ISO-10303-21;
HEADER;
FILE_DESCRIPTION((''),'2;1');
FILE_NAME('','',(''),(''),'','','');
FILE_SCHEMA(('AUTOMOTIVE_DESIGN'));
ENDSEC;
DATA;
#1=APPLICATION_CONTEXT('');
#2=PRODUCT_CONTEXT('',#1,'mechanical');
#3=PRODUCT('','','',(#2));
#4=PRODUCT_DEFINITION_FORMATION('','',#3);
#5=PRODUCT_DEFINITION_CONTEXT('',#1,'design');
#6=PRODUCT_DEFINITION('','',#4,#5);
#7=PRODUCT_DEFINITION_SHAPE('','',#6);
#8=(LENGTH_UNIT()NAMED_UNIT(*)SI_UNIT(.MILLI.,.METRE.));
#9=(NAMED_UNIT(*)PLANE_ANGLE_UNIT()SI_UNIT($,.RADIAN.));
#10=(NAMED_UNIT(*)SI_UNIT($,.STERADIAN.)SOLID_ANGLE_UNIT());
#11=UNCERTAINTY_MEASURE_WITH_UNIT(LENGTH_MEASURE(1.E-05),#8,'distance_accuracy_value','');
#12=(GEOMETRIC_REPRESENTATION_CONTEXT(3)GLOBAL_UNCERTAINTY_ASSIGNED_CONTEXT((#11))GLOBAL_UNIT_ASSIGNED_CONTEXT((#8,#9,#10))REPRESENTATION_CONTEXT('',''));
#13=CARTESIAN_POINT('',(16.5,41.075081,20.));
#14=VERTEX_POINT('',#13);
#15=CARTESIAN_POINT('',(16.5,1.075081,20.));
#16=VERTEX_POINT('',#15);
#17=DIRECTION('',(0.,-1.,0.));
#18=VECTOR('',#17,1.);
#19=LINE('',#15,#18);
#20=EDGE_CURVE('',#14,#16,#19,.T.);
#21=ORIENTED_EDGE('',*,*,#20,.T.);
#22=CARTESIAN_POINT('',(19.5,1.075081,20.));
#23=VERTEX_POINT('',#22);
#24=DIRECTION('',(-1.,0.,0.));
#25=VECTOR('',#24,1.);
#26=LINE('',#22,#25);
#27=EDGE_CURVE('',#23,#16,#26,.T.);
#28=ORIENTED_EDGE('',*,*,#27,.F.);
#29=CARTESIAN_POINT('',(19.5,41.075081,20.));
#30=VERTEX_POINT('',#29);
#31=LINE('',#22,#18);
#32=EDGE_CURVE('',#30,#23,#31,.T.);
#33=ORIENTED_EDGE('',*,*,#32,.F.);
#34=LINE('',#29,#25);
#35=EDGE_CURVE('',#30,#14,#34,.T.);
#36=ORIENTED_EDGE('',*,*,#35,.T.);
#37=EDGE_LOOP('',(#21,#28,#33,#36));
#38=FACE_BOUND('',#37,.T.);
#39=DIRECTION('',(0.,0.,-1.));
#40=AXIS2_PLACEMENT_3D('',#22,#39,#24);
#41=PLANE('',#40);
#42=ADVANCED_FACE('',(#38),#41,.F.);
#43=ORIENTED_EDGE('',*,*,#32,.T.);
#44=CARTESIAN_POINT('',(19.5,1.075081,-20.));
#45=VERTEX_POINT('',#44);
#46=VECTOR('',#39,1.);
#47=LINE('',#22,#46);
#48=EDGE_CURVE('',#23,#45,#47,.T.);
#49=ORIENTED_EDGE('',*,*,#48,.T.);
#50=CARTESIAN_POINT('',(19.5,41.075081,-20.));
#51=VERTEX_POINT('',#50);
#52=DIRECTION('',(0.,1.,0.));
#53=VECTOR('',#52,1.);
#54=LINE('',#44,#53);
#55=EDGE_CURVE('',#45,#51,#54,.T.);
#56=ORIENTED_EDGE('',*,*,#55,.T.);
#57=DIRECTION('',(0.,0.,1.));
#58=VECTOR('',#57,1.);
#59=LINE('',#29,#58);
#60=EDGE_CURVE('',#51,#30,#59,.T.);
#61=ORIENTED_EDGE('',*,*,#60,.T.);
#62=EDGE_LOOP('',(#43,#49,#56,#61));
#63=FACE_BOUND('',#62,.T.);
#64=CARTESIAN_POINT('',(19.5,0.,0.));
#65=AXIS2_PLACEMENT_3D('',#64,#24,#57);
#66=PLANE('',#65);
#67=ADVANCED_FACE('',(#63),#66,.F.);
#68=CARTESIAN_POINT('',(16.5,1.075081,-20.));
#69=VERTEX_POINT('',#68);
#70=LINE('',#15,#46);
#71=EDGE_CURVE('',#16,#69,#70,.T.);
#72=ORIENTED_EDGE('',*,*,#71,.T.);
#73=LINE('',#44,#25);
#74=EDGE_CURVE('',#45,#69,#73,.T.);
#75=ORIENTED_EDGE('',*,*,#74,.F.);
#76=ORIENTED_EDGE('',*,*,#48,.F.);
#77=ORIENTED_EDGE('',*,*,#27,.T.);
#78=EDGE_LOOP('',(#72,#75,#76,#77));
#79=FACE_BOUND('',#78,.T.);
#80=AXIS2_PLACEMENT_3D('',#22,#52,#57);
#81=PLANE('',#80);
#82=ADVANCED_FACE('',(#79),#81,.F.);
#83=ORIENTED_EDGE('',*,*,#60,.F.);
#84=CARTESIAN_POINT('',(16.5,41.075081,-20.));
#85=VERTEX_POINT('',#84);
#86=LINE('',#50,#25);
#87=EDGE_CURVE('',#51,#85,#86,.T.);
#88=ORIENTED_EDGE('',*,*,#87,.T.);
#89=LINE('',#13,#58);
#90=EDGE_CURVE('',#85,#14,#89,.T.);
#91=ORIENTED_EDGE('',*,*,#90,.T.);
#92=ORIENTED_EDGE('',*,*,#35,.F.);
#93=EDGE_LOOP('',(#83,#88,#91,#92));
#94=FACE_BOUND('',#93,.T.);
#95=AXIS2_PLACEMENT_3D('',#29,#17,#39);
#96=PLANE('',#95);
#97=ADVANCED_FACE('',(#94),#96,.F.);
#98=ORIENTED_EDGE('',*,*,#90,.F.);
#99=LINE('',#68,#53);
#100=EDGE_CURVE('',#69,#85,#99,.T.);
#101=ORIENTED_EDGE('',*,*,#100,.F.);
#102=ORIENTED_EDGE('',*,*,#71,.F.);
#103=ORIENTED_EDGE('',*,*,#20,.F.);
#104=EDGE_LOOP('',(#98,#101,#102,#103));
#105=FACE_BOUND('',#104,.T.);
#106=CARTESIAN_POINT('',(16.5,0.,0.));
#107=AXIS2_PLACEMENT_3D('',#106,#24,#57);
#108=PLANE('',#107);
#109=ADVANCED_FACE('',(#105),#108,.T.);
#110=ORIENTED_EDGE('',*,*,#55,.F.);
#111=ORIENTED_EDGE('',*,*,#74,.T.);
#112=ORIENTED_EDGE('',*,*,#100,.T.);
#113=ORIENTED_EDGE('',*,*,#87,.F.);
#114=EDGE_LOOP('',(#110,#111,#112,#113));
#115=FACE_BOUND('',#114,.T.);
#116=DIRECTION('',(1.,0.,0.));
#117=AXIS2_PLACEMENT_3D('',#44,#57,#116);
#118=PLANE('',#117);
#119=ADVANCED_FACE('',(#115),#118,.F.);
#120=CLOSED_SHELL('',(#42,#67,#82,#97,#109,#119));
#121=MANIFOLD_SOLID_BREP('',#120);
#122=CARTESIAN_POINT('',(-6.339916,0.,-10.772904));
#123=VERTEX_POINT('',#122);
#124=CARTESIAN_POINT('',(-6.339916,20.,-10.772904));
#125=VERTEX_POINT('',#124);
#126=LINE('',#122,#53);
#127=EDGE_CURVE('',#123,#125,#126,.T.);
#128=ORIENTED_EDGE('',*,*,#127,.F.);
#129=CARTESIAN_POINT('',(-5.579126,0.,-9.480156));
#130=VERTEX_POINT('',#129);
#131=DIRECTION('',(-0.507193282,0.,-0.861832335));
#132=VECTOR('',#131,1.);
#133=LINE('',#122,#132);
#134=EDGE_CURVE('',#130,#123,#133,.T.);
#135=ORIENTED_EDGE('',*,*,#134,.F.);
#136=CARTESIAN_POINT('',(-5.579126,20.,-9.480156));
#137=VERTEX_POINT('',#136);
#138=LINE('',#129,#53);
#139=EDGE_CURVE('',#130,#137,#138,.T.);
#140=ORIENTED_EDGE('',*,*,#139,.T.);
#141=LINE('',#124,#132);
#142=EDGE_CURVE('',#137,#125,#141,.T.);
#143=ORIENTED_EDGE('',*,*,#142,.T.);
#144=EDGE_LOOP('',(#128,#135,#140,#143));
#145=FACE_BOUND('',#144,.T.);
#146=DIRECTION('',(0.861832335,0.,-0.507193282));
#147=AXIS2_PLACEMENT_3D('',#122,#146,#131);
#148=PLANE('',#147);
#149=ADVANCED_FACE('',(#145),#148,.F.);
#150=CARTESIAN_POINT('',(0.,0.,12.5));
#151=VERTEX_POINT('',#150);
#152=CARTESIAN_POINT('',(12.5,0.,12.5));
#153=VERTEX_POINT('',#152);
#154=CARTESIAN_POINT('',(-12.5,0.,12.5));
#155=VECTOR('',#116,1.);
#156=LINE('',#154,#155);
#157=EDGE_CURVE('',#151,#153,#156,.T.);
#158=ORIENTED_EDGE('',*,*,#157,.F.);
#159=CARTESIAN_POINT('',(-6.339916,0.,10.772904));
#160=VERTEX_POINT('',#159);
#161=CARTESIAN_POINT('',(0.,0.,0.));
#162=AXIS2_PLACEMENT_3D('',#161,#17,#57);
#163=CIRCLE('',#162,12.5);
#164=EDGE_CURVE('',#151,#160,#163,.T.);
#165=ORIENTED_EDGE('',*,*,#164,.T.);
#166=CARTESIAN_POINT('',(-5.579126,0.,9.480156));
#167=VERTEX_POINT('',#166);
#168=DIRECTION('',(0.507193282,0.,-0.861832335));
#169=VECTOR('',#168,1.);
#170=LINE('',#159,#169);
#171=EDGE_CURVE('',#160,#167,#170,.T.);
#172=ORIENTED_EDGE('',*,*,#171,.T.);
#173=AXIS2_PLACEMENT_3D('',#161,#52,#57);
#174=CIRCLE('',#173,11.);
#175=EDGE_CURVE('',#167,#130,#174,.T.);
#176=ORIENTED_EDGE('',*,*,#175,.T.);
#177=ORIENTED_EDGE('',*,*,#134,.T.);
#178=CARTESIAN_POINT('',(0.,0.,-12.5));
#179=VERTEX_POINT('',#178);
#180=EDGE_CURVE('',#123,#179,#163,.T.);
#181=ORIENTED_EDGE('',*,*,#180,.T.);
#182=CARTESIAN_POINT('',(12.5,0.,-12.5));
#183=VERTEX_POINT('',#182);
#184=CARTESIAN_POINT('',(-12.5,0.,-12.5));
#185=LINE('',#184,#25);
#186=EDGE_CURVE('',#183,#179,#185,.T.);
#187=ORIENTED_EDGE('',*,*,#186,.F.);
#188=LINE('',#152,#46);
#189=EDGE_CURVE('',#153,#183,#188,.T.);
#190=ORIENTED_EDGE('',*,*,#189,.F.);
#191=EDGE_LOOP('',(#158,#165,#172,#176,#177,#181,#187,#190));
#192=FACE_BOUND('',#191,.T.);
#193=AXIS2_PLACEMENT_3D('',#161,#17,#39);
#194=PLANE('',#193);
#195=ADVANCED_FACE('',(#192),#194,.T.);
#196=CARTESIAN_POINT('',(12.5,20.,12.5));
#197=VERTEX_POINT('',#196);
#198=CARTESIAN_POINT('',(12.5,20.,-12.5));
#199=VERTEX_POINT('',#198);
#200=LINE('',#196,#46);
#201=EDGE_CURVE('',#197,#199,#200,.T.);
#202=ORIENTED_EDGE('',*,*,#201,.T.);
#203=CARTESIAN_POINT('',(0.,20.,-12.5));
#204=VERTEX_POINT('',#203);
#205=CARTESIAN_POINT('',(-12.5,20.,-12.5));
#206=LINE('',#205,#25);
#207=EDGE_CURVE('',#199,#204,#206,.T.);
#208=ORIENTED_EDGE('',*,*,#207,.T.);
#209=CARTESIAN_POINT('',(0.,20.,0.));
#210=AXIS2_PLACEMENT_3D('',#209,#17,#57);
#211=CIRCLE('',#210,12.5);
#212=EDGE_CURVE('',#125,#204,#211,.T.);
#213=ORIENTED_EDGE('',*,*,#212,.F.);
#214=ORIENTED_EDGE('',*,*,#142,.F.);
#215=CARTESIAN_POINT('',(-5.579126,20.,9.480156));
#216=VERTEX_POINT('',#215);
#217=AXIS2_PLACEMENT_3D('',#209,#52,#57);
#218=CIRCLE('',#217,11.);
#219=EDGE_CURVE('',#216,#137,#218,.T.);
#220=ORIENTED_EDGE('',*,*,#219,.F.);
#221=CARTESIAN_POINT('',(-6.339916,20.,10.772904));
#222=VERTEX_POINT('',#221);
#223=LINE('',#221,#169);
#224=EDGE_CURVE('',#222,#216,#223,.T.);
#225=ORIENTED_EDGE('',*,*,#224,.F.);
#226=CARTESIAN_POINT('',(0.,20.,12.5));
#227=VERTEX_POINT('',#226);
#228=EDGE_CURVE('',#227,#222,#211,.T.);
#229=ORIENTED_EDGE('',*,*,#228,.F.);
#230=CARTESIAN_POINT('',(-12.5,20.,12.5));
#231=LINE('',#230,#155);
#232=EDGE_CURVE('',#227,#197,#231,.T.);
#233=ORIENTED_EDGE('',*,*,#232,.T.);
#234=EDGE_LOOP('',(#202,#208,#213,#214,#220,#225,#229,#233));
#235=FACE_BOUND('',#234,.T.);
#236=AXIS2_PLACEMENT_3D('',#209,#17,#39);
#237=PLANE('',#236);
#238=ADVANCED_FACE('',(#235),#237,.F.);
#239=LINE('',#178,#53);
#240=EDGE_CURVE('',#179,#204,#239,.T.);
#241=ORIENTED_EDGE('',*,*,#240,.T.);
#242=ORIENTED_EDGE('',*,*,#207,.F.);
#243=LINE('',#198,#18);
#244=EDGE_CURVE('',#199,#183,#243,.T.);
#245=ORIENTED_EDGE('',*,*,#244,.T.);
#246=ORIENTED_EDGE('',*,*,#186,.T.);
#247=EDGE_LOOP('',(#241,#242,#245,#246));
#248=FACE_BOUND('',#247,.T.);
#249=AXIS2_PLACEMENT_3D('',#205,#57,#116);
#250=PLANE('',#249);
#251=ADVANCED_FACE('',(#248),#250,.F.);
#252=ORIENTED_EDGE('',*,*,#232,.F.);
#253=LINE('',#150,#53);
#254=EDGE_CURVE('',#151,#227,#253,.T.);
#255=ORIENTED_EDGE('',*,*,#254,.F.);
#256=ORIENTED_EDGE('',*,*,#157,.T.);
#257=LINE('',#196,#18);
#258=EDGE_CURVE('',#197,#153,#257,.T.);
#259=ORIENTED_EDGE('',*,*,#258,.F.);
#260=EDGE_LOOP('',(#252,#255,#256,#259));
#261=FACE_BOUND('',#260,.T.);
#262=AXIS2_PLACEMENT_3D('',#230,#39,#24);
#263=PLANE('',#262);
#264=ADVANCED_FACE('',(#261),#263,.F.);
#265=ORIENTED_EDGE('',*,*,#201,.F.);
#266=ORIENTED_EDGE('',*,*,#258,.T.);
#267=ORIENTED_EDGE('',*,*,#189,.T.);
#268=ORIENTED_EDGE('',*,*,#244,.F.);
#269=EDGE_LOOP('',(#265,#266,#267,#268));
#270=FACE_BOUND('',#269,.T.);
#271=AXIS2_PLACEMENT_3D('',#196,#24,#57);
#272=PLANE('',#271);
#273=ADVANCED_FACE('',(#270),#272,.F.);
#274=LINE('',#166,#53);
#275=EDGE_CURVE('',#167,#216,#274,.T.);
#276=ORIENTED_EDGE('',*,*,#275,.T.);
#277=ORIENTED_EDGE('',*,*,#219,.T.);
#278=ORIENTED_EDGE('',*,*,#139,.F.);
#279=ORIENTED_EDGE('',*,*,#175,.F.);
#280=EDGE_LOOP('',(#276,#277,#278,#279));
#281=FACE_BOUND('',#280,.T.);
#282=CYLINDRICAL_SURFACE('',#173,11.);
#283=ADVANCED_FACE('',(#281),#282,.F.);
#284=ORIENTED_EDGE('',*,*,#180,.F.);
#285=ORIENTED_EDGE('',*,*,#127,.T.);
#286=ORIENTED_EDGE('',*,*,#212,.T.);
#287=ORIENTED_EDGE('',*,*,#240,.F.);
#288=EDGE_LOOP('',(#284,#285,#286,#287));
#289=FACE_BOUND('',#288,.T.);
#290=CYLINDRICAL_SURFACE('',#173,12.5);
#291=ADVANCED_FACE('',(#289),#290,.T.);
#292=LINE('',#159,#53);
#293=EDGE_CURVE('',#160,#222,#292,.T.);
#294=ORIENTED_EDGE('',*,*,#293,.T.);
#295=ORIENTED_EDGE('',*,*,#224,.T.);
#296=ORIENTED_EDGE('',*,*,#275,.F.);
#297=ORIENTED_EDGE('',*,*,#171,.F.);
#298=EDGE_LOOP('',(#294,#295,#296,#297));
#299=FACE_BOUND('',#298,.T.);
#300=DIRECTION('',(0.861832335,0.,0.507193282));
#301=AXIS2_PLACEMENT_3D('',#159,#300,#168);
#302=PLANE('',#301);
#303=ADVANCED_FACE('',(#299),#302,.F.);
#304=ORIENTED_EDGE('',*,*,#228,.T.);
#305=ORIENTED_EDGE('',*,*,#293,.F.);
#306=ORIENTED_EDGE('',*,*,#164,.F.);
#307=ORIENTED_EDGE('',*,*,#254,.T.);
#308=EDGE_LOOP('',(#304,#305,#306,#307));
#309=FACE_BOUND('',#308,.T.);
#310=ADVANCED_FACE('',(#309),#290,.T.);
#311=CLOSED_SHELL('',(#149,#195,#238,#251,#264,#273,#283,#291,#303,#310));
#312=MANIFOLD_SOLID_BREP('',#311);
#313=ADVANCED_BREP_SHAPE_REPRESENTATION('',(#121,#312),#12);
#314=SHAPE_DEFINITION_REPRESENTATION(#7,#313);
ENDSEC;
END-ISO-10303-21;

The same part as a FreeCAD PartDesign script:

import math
import FreeCAD as App
import Part
import Sketcher

doc = App.newDocument("Part")
body = doc.addObject("PartDesign::Body", "Body")

sketch1 = doc.addObject("Sketcher::SketchObject", "Sketch")
body.addObject(sketch1)
sketch1.AttachmentSupport = (doc.XZ_Plane, [""])
sketch1.MapMode = "FlatFace"
sketch1.addGeometry([
    Part.LineSegment(App.Vector(-12, -12, 0), App.Vector(-12, 12, 0)),
    Part.LineSegment(App.Vector(-12, 12, 0), App.Vector(12, 12, 0)),
    Part.LineSegment(App.Vector(12, 12, 0), App.Vector(12, -12, 0)),
    Part.LineSegment(App.Vector(12, -12, 0), App.Vector(-12, -12, 0)),
], False)
sketch1.addConstraint([
    Sketcher.Constraint("Coincident", 0, 2, 1, 1),
    Sketcher.Constraint("Coincident", 1, 2, 2, 1),
    Sketcher.Constraint("Coincident", 2, 2, 3, 1),
    Sketcher.Constraint("Coincident", 3, 2, 0, 1),
    Sketcher.Constraint("Vertical", 0),
    Sketcher.Constraint("Horizontal", 1),
    Sketcher.Constraint("Vertical", 2),
    Sketcher.Constraint("Horizontal", 3),
    Sketcher.Constraint("Symmetric", 0, 2, 2, 2, -1, 1),
    Sketcher.Constraint("Equal", 3, 0),
    Sketcher.Constraint("DistanceX", 1, 1, 1, 2, 25.0),
])
pad1 = doc.addObject("PartDesign::Pad", "Pad")
body.addObject(pad1)
pad1.Profile = sketch1
pad1.Length = 20
pad1.Reversed = True

sketch2 = doc.addObject("Sketcher::SketchObject", "Sketch001")
body.addObject(sketch2)
sketch2.AttachmentSupport = (doc.XZ_Plane, [""])
sketch2.MapMode = "FlatFace"
sketch2.AttachmentOffset = App.Placement(App.Vector(0, 0, -20), App.Rotation())
sketch2.addGeometry(Part.Circle(App.Vector(0, 0, 0), App.Vector(0, 0, 1), 11), False)
sketch2.addConstraint([
    Sketcher.Constraint("Coincident", 0, 3, -1, 1),
    Sketcher.Constraint("Diameter", 0, 22.0),
])
pocket1 = doc.addObject("PartDesign::Pocket", "Pocket")
body.addObject(pocket1)
pocket1.Profile = sketch2
pocket1.Type = "ThroughAll"
pocket1.Reversed = True

sketch3 = doc.addObject("Sketcher::SketchObject", "Sketch002")
body.addObject(sketch3)
sketch3.AttachmentSupport = (doc.XZ_Plane, [""])
sketch3.MapMode = "FlatFace"
sketch3.AttachmentOffset = App.Placement(App.Vector(0, 0, -20), App.Rotation())
sketch3.addGeometry([
    Part.LineSegment(App.Vector(0, -12.5, 0), App.Vector(-12.5, -12.5, 0)),
    Part.LineSegment(App.Vector(-12.5, -12.5, 0), App.Vector(-12.5, 12.5, 0)),
    Part.LineSegment(App.Vector(-12.5, 12.5, 0), App.Vector(0, 12.5, 0)),
    Part.ArcOfCircle(Part.Circle(App.Vector(0, 0, 0), App.Vector(0, 0, 1), 12.5), math.radians(90), math.radians(120)),
    Part.LineSegment(App.Vector(-6.3, 10.8, 0), App.Vector(-5.6, 9.5, 0)),
    Part.ArcOfCircle(Part.Circle(App.Vector(0, 0, 0), App.Vector(0, 0, 1), 11), math.radians(120), math.radians(240)),
    Part.LineSegment(App.Vector(-5.6, -9.5, 0), App.Vector(-6.3, -10.8, 0)),
    Part.ArcOfCircle(Part.Circle(App.Vector(0, 0, 0), App.Vector(0, 0, 1), 12.5), math.radians(-120), math.radians(-90)),
], False)
sketch3.addConstraint([
    Sketcher.Constraint("Coincident", 0, 2, 1, 1),
    Sketcher.Constraint("Coincident", 1, 2, 2, 1),
    Sketcher.Constraint("Tangent", 2, 2, 3, 1),
    Sketcher.Constraint("Coincident", 3, 2, 4, 1),
    Sketcher.Constraint("Coincident", 4, 2, 5, 1),
    Sketcher.Constraint("Coincident", 5, 2, 6, 1),
    Sketcher.Constraint("Coincident", 6, 2, 7, 1),
    Sketcher.Constraint("Tangent", 7, 2, 0, 1),
    Sketcher.Constraint("Horizontal", 0),
    Sketcher.Constraint("Vertical", 1),
    Sketcher.Constraint("Horizontal", 2),
    Sketcher.Constraint("Coincident", 3, 3, -1, 1),
    Sketcher.Constraint("Coincident", 5, 3, -1, 1),
    Sketcher.Constraint("Coincident", 7, 3, -1, 1),
    Sketcher.Constraint("Equal", 3, 7),
    Sketcher.Constraint("Vertical", 4, 2, 5, 2),
    Sketcher.Constraint("Vertical", 3, 2, 6, 2),
    Sketcher.Constraint("Radius", 5, 11.0),
    Sketcher.Constraint("Radius", 3, 12.5),
    Sketcher.Constraint("DistanceX", 0, 2, 0, 1, 12.5),
    Sketcher.Constraint("DistanceX", 3, 2, 4, 2, 0.76079),
    Sketcher.Constraint("DistanceY", 5, 2, 4, 2, 18.960311),
])
pocket2 = doc.addObject("PartDesign::Pocket", "Pocket001")
body.addObject(pocket2)
pocket2.Profile = sketch3
pocket2.Type = "ThroughAll"
pocket2.Reversed = True
body2 = doc.addObject("PartDesign::Body", "Body001")

sketch4 = doc.addObject("Sketcher::SketchObject", "Sketch003")
body2.addObject(sketch4)
sketch4.AttachmentSupport = (doc.getObject("YZ_Plane001"), [""])
sketch4.MapMode = "FlatFace"
sketch4.AttachmentOffset = App.Placement(App.Vector(0, 0, 16.5), App.Rotation())
sketch4.addGeometry([
    Part.LineSegment(App.Vector(41, 20, 0), App.Vector(1, 20, 0)),
    Part.LineSegment(App.Vector(1, 20, 0), App.Vector(1, -20, 0)),
    Part.LineSegment(App.Vector(1, -20, 0), App.Vector(41, -20, 0)),
    Part.LineSegment(App.Vector(41, -20, 0), App.Vector(41, 20, 0)),
], False)
sketch4.addConstraint([
    Sketcher.Constraint("Coincident", 0, 2, 1, 1),
    Sketcher.Constraint("Coincident", 1, 2, 2, 1),
    Sketcher.Constraint("Coincident", 2, 2, 3, 1),
    Sketcher.Constraint("Coincident", 3, 2, 0, 1),
    Sketcher.Constraint("Horizontal", 0),
    Sketcher.Constraint("Vertical", 1),
    Sketcher.Constraint("Horizontal", 2),
    Sketcher.Constraint("Vertical", 3),
    Sketcher.Constraint("Equal", 2, 1),
    Sketcher.Constraint("DistanceX", 0, 2, 0, 1, 40.0),
    Sketcher.Constraint("DistanceY", -1, 1, 0, 2, 20.0),
    Sketcher.Constraint("DistanceX", -1, 1, 0, 2, 1.075081),
])
pad2 = doc.addObject("PartDesign::Pad", "Pad001")
body2.addObject(pad2)
pad2.Profile = sketch4
pad2.Length = 3

doc.recompute()
